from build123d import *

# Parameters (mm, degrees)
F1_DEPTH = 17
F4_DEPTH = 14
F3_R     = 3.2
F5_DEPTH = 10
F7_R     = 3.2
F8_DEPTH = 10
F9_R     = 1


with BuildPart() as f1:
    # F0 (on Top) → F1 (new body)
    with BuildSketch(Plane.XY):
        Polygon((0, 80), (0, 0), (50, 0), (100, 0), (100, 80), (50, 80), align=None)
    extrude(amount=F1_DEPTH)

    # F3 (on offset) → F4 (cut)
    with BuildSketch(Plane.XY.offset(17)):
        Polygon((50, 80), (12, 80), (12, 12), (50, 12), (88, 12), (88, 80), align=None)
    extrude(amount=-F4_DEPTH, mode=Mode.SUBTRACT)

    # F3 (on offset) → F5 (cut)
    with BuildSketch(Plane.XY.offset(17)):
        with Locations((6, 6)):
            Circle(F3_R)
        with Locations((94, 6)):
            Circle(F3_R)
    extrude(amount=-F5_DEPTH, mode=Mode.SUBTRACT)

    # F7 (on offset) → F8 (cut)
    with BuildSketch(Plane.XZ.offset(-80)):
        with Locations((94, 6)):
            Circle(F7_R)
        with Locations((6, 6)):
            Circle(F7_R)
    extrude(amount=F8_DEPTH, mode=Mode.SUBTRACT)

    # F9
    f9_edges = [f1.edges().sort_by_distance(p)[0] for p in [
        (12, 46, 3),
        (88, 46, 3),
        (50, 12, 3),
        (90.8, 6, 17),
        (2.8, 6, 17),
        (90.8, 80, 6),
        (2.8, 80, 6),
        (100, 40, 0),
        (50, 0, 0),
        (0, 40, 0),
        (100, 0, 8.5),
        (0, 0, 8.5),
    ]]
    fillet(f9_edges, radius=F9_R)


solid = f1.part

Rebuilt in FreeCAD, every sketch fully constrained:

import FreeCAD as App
import Part
import Sketcher

V = App.Vector


def edges_at(feature, points):
    """Names of the edges that pass closest to the given points."""
    edges = feature.Shape.Edges
    near = lambda p: min(range(len(edges)), key=lambda i: edges[i].distToShape(Part.Vertex(*p))[0])
    return sorted({f"Edge{near(p) + 1}" for p in points})


def add_polygon(sketch, points):
    """Adds a closed chain of lines whose ends are joined by coincident constraints."""
    first, n = sketch.GeometryCount, len(points)
    for a, b in zip(points, points[1:] + points[:1]):
        sketch.addGeometry(Part.LineSegment(App.Vector(*a, 0), App.Vector(*b, 0)), False)
    for i in range(n):
        sketch.addConstraint(Sketcher.Constraint("Coincident", first + i, 2, first + (i + 1) % n, 1))

doc = App.newDocument("Part")
body = doc.addObject("PartDesign::Body", "Body")

# Sketch on XY plane
sketch1 = doc.addObject("Sketcher::SketchObject", "Sketch")
body.addObject(sketch1)
sketch1.AttachmentSupport = (doc.XY_Plane, [""])
sketch1.MapMode = "FlatFace"
add_polygon(sketch1, [(0, 80), (0, 0), (100, 0), (100, 80)])  # lines 0-3
sketch1.addConstraint([
    Sketcher.Constraint("Vertical", 0),
    Sketcher.Constraint("Horizontal", 1),
    Sketcher.Constraint("Vertical", 2),
    Sketcher.Constraint("Horizontal", 3),
    Sketcher.Constraint("Coincident", 0, 2, -1, 1),
    Sketcher.Constraint("DistanceX", 1, 1, 1, 2, 100.0),
    Sketcher.Constraint("DistanceY", 0, 2, 0, 1, 80.0),
])
pad1 = doc.addObject("PartDesign::Pad", "Pad")
body.addObject(pad1)
pad1.Profile = sketch1
pad1.Length = 17

# Sketch on XY plane
sketch2 = doc.addObject("Sketcher::SketchObject", "Sketch001")
body.addObject(sketch2)
sketch2.AttachmentSupport = (doc.XY_Plane, [""])
sketch2.MapMode = "FlatFace"
sketch2.AttachmentOffset = App.Placement(V(0, 0, 17), App.Rotation())
add_polygon(sketch2, [(12, 80), (12, 12), (88, 12), (88, 80)])  # lines 0-3
sketch2.addConstraint([
    Sketcher.Constraint("Vertical", 0),
    Sketcher.Constraint("Horizontal", 1),
    Sketcher.Constraint("Vertical", 2),
    Sketcher.Constraint("Horizontal", 3),
    Sketcher.Constraint("DistanceX", 1, 1, 1, 2, 76.0),
    Sketcher.Constraint("DistanceY", 0, 2, 0, 1, 68.0),
    Sketcher.Constraint("DistanceX", -1, 1, 0, 2, 12.0),
    Sketcher.Constraint("DistanceY", -1, 1, 0, 2, 12.0),
])
pocket1 = doc.addObject("PartDesign::Pocket", "Pocket")
body.addObject(pocket1)
pocket1.Profile = sketch2
pocket1.Length = 14

# Sketch on XY plane
sketch3 = doc.addObject("Sketcher::SketchObject", "Sketch002")
body.addObject(sketch3)
sketch3.AttachmentSupport = (doc.XY_Plane, [""])
sketch3.MapMode = "FlatFace"
sketch3.AttachmentOffset = App.Placement(V(0, 0, 17), App.Rotation())
sketch3.addGeometry([
    Part.Circle(V(6, 6, 0), V(0, 0, 1), 3.2),
    Part.Circle(V(94, 6, 0), V(0, 0, 1), 3.2),
], False)
sketch3.addConstraint([
    Sketcher.Constraint("Equal", 0, 1),
    Sketcher.Constraint("Horizontal", 0, 3, 1, 3),
    Sketcher.Constraint("Diameter", 0, 6.4),
    Sketcher.Constraint("DistanceX", -1, 1, 0, 3, 6.0),
    Sketcher.Constraint("DistanceY", -1, 1, 0, 3, 6.0),
    Sketcher.Constraint("DistanceX", -1, 1, 1, 3, 94.0),
])
pocket2 = doc.addObject("PartDesign::Pocket", "Pocket001")
body.addObject(pocket2)
pocket2.Profile = sketch3
pocket2.Length = 10

# Sketch on XZ plane
sketch4 = doc.addObject("Sketcher::SketchObject", "Sketch003")
body.addObject(sketch4)
sketch4.AttachmentSupport = (doc.XZ_Plane, [""])
sketch4.MapMode = "FlatFace"
sketch4.AttachmentOffset = App.Placement(V(0, 0, -80), App.Rotation())
sketch4.addGeometry([
    Part.Circle(V(94, 6, 0), V(0, 0, 1), 3.2),
    Part.Circle(V(6, 6, 0), V(0, 0, 1), 3.2),
], False)
sketch4.addConstraint([
    Sketcher.Constraint("Equal", 0, 1),
    Sketcher.Constraint("Horizontal", 0, 3, 1, 3),
    Sketcher.Constraint("Diameter", 0, 6.4),
    Sketcher.Constraint("DistanceX", -1, 1, 0, 3, 94.0),
    Sketcher.Constraint("DistanceY", -1, 1, 0, 3, 6.0),
    Sketcher.Constraint("DistanceX", -1, 1, 1, 3, 6.0),
])
pocket3 = doc.addObject("PartDesign::Pocket", "Pocket002")
body.addObject(pocket3)
pocket3.Profile = sketch4
pocket3.Length = 10
pocket3.Reversed = True
doc.recompute()

fillet = doc.addObject("PartDesign::Fillet", "Fillet")
body.addObject(fillet)
fillet.Base = (pocket3, edges_at(pocket3, [
    (12, 46, 3),
    (88, 46, 3),
    (50, 12, 3),
    (90.8, 6, 17),
    (2.8, 6, 17),
    (90.8, 80, 6),
    (2.8, 80, 6),
    (100, 40, 0),
    (50, 0, 0),
    (0, 40, 0),
    (100, 0, 8.5),
    (0, 0, 8.5),
]))
fillet.Radius = 1

doc.recompute()
